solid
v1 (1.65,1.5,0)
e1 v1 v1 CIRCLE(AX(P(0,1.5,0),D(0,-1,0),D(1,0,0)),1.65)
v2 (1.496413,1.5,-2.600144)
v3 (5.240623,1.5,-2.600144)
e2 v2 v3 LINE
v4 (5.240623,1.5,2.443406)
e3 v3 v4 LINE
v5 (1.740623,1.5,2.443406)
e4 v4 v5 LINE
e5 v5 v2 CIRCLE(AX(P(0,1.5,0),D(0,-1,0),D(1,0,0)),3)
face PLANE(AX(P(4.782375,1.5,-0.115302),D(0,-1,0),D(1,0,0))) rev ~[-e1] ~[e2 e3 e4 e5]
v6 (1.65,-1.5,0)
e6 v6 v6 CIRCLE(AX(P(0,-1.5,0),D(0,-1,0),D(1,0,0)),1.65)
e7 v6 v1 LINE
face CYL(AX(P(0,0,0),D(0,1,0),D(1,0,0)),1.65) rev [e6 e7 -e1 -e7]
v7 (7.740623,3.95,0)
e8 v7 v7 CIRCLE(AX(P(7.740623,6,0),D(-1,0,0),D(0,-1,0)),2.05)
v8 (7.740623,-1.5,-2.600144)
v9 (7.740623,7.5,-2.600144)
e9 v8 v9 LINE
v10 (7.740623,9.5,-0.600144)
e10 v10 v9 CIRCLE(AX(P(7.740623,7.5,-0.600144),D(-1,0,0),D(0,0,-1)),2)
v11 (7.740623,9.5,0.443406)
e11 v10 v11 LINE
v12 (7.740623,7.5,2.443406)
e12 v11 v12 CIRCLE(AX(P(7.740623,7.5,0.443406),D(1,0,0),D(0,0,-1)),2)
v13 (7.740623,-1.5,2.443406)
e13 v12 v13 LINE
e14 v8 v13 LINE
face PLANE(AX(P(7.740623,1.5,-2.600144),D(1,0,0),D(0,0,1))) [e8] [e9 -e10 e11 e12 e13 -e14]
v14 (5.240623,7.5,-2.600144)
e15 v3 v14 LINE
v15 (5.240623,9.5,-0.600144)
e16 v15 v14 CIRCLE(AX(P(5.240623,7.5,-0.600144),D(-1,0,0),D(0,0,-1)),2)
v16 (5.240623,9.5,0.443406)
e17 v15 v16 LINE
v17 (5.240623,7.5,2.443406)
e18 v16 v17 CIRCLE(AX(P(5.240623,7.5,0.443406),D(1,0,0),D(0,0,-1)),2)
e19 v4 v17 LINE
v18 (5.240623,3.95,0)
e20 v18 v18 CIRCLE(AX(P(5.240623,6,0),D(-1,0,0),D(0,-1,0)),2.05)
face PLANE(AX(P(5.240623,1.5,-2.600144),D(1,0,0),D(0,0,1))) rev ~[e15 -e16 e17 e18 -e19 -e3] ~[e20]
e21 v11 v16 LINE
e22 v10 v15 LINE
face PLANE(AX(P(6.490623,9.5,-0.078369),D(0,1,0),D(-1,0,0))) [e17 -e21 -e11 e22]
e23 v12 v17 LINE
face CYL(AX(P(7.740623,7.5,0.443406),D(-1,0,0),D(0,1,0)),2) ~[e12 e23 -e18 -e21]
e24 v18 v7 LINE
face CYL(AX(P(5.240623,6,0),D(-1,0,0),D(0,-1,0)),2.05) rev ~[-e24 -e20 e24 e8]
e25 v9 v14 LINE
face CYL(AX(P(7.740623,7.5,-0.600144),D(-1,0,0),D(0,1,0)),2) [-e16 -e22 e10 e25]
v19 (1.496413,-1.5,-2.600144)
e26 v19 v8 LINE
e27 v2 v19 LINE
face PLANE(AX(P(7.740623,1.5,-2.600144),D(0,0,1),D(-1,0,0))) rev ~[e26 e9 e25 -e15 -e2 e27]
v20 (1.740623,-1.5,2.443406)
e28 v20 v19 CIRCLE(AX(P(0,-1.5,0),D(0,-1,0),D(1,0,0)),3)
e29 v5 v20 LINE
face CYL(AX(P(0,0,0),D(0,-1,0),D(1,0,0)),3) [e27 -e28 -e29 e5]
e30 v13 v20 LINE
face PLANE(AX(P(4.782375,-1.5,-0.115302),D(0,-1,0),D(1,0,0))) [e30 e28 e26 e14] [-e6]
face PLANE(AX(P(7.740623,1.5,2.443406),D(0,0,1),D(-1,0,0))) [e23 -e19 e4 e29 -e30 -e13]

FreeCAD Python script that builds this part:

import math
import FreeCAD as App
import Part
import Sketcher


def edges_at(feature, points):
    """Names of the edges that pass closest to the given points."""
    edges = feature.Shape.Edges
    near = lambda p: min(range(len(edges)), key=lambda i: edges[i].distToShape(Part.Vertex(*p))[0])
    return sorted({f"Edge{near(p) + 1}" for p in points})


def add_polygon(sketch, points):
    """Adds a closed chain of lines whose ends are joined by coincident constraints."""
    first, n = sketch.GeometryCount, len(points)
    for a, b in zip(points, points[1:] + points[:1]):
        sketch.addGeometry(Part.LineSegment(App.Vector(*a, 0), App.Vector(*b, 0)), False)
    for i in range(n):
        sketch.addConstraint(Sketcher.Constraint("Coincident", first + i, 2, first + (i + 1) % n, 1))

doc = App.newDocument("Part")
body = doc.addObject("PartDesign::Body", "Body")

# Sketch on XZ plane
sketch1 = doc.addObject("Sketcher::SketchObject", "Sketch")
body.addObject(sketch1)
sketch1.AttachmentSupport = (doc.XZ_Plane, [""])
sketch1.MapMode = "FlatFace"
sketch1.addGeometry([
    Part.Circle(App.Vector(0, 0, 0), App.Vector(0, 0, 1), 3),
    Part.Circle(App.Vector(0, 0, 0), App.Vector(0, 0, 1), 1.6),
], False)
sketch1.addConstraint([
    Sketcher.Constraint("Coincident", 0, 3, -1, 1),
    Sketcher.Constraint("Coincident", 1, 3, -1, 1),
    Sketcher.Constraint("Diameter", 0, 6.0),
    Sketcher.Constraint("Diameter", 1, 3.3),
])
pad1 = doc.addObject("PartDesign::Pad", "Pad")
body.addObject(pad1)
pad1.Profile = sketch1
pad1.Type = "TwoLengths"
pad1.Length = 1.5
pad1.Length2 = 1.5

# Sketch on XZ plane
sketch2 = doc.addObject("Sketcher::SketchObject", "Sketch001")
body.addObject(sketch2)
sketch2.AttachmentSupport = (doc.XZ_Plane, [""])
sketch2.MapMode = "FlatFace"
sketch2.addGeometry([
    Part.LineSegment(App.Vector(7.7, 2.4, 0), App.Vector(1.7, 2.4, 0)),  # 0
    Part.ArcOfCircle(Part.Circle(App.Vector(0, 0, 0), App.Vector(0, 0, 1), 3), math.radians(0), math.radians(55)),  # 1
    Part.ArcOfCircle(Part.Circle(App.Vector(0, 0, 0), App.Vector(0, 0, 1), 3), math.radians(-60), math.radians(0)),  # 2
    Part.LineSegment(App.Vector(1.5, -2.6, 0), App.Vector(7.7, -2.6, 0)),  # 3
    Part.LineSegment(App.Vector(7.7, -2.6, 0), App.Vector(7.7, 2.4, 0)),  # 4
], False)
sketch2.addConstraint([
    Sketcher.Constraint("Coincident", 0, 2, 1, 2),
    Sketcher.Constraint("Tangent", 1, 1, 2, 2),
    Sketcher.Constraint("Coincident", 2, 1, 3, 1),
    Sketcher.Constraint("Coincident", 3, 2, 4, 1),
    Sketcher.Constraint("Coincident", 4, 2, 0, 1),
    Sketcher.Constraint("Horizontal", 0),
    Sketcher.Constraint("Horizontal", 3),
    Sketcher.Constraint("Vertical", 4),
    Sketcher.Constraint("Coincident", 1, 3, -1, 1),
    Sketcher.Constraint("PointOnObject", 1, 1, -1),
    Sketcher.Constraint("Radius", 2, 3.000002),
    Sketcher.Constraint("DistanceX", 0, 2, 0, 1, 6.0),
    Sketcher.Constraint("DistanceX", -1, 1, 1, 1, 3.0),
    Sketcher.Constraint("DistanceX", 3, 1, 3, 2, 6.24421),
    Sketcher.Constraint("DistanceY", 4, 1, 4, 2, 5.04355),
])
pad2 = doc.addObject("PartDesign::Pad", "Pad001")
body.addObject(pad2)
pad2.Profile = sketch2
pad2.Type = "TwoLengths"
pad2.Length = 1.5
pad2.Length2 = 1.5

# Sketch on XZ plane
sketch3 = doc.addObject("Sketcher::SketchObject", "Sketch002")
body.addObject(sketch3)
sketch3.AttachmentSupport = (doc.XZ_Plane, [""])
sketch3.MapMode = "FlatFace"
sketch3.AttachmentOffset = App.Placement(App.Vector(0, 0, -1.5), App.Rotation())
add_polygon(sketch3, [(7.7, 2.4), (7.7, -2.6), (5.2, -2.6), (5.2, 2.4)])  # lines 0-3
sketch3.addConstraint([
    Sketcher.Constraint("Vertical", 0),
    Sketcher.Constraint("Horizontal", 1),
    Sketcher.Constraint("Vertical", 2),
    Sketcher.Constraint("Horizontal", 3),
    Sketcher.Constraint("DistanceX", 1, 2, 1, 1, 2.5),
    Sketcher.Constraint("DistanceY", 0, 2, 0, 1, 5.04355),
    Sketcher.Constraint("DistanceX", -1, 1, 0, 2, 7.740623),
    Sketcher.Constraint("DistanceY", 0, 2, -1, 1, 2.600144),
])
pad3 = doc.addObject("PartDesign::Pad", "Pad002")
body.addObject(pad3)
pad3.Profile = sketch3
pad3.Length = 8
pad3.Reversed = True

# Sketch on YZ plane
sketch4 = doc.addObject("Sketcher::SketchObject", "Sketch003")
body.addObject(sketch4)
sketch4.AttachmentSupport = (doc.YZ_Plane, [""])
sketch4.MapMode = "FlatFace"
sketch4.AttachmentOffset = App.Placement(App.Vector(0, 0, 5.240623), App.Rotation())
sketch4.addGeometry(Part.Circle(App.Vector(6, 0, 0), App.Vector(0, 0, 1), 2), False)
sketch4.addConstraint([
    Sketcher.Constraint("PointOnObject", 0, 3, -1),
    Sketcher.Constraint("Diameter", 0, 4.1),
    Sketcher.Constraint("DistanceX", -1, 1, 0, 3, 6.0),
])
pocket1 = doc.addObject("PartDesign::Pocket", "Pocket")
body.addObject(pocket1)
pocket1.Profile = sketch4
pocket1.Length = 25
pocket1.Reversed = True
doc.recompute()

fillet = doc.addObject("PartDesign::Fillet", "Fillet")
body.addObject(fillet)
fillet.Base = (pocket1, edges_at(pocket1, [(6.491, 9.5, -2.6), (6.491, 9.5, 2.443)]))
fillet.Radius = 2

doc.recompute()
